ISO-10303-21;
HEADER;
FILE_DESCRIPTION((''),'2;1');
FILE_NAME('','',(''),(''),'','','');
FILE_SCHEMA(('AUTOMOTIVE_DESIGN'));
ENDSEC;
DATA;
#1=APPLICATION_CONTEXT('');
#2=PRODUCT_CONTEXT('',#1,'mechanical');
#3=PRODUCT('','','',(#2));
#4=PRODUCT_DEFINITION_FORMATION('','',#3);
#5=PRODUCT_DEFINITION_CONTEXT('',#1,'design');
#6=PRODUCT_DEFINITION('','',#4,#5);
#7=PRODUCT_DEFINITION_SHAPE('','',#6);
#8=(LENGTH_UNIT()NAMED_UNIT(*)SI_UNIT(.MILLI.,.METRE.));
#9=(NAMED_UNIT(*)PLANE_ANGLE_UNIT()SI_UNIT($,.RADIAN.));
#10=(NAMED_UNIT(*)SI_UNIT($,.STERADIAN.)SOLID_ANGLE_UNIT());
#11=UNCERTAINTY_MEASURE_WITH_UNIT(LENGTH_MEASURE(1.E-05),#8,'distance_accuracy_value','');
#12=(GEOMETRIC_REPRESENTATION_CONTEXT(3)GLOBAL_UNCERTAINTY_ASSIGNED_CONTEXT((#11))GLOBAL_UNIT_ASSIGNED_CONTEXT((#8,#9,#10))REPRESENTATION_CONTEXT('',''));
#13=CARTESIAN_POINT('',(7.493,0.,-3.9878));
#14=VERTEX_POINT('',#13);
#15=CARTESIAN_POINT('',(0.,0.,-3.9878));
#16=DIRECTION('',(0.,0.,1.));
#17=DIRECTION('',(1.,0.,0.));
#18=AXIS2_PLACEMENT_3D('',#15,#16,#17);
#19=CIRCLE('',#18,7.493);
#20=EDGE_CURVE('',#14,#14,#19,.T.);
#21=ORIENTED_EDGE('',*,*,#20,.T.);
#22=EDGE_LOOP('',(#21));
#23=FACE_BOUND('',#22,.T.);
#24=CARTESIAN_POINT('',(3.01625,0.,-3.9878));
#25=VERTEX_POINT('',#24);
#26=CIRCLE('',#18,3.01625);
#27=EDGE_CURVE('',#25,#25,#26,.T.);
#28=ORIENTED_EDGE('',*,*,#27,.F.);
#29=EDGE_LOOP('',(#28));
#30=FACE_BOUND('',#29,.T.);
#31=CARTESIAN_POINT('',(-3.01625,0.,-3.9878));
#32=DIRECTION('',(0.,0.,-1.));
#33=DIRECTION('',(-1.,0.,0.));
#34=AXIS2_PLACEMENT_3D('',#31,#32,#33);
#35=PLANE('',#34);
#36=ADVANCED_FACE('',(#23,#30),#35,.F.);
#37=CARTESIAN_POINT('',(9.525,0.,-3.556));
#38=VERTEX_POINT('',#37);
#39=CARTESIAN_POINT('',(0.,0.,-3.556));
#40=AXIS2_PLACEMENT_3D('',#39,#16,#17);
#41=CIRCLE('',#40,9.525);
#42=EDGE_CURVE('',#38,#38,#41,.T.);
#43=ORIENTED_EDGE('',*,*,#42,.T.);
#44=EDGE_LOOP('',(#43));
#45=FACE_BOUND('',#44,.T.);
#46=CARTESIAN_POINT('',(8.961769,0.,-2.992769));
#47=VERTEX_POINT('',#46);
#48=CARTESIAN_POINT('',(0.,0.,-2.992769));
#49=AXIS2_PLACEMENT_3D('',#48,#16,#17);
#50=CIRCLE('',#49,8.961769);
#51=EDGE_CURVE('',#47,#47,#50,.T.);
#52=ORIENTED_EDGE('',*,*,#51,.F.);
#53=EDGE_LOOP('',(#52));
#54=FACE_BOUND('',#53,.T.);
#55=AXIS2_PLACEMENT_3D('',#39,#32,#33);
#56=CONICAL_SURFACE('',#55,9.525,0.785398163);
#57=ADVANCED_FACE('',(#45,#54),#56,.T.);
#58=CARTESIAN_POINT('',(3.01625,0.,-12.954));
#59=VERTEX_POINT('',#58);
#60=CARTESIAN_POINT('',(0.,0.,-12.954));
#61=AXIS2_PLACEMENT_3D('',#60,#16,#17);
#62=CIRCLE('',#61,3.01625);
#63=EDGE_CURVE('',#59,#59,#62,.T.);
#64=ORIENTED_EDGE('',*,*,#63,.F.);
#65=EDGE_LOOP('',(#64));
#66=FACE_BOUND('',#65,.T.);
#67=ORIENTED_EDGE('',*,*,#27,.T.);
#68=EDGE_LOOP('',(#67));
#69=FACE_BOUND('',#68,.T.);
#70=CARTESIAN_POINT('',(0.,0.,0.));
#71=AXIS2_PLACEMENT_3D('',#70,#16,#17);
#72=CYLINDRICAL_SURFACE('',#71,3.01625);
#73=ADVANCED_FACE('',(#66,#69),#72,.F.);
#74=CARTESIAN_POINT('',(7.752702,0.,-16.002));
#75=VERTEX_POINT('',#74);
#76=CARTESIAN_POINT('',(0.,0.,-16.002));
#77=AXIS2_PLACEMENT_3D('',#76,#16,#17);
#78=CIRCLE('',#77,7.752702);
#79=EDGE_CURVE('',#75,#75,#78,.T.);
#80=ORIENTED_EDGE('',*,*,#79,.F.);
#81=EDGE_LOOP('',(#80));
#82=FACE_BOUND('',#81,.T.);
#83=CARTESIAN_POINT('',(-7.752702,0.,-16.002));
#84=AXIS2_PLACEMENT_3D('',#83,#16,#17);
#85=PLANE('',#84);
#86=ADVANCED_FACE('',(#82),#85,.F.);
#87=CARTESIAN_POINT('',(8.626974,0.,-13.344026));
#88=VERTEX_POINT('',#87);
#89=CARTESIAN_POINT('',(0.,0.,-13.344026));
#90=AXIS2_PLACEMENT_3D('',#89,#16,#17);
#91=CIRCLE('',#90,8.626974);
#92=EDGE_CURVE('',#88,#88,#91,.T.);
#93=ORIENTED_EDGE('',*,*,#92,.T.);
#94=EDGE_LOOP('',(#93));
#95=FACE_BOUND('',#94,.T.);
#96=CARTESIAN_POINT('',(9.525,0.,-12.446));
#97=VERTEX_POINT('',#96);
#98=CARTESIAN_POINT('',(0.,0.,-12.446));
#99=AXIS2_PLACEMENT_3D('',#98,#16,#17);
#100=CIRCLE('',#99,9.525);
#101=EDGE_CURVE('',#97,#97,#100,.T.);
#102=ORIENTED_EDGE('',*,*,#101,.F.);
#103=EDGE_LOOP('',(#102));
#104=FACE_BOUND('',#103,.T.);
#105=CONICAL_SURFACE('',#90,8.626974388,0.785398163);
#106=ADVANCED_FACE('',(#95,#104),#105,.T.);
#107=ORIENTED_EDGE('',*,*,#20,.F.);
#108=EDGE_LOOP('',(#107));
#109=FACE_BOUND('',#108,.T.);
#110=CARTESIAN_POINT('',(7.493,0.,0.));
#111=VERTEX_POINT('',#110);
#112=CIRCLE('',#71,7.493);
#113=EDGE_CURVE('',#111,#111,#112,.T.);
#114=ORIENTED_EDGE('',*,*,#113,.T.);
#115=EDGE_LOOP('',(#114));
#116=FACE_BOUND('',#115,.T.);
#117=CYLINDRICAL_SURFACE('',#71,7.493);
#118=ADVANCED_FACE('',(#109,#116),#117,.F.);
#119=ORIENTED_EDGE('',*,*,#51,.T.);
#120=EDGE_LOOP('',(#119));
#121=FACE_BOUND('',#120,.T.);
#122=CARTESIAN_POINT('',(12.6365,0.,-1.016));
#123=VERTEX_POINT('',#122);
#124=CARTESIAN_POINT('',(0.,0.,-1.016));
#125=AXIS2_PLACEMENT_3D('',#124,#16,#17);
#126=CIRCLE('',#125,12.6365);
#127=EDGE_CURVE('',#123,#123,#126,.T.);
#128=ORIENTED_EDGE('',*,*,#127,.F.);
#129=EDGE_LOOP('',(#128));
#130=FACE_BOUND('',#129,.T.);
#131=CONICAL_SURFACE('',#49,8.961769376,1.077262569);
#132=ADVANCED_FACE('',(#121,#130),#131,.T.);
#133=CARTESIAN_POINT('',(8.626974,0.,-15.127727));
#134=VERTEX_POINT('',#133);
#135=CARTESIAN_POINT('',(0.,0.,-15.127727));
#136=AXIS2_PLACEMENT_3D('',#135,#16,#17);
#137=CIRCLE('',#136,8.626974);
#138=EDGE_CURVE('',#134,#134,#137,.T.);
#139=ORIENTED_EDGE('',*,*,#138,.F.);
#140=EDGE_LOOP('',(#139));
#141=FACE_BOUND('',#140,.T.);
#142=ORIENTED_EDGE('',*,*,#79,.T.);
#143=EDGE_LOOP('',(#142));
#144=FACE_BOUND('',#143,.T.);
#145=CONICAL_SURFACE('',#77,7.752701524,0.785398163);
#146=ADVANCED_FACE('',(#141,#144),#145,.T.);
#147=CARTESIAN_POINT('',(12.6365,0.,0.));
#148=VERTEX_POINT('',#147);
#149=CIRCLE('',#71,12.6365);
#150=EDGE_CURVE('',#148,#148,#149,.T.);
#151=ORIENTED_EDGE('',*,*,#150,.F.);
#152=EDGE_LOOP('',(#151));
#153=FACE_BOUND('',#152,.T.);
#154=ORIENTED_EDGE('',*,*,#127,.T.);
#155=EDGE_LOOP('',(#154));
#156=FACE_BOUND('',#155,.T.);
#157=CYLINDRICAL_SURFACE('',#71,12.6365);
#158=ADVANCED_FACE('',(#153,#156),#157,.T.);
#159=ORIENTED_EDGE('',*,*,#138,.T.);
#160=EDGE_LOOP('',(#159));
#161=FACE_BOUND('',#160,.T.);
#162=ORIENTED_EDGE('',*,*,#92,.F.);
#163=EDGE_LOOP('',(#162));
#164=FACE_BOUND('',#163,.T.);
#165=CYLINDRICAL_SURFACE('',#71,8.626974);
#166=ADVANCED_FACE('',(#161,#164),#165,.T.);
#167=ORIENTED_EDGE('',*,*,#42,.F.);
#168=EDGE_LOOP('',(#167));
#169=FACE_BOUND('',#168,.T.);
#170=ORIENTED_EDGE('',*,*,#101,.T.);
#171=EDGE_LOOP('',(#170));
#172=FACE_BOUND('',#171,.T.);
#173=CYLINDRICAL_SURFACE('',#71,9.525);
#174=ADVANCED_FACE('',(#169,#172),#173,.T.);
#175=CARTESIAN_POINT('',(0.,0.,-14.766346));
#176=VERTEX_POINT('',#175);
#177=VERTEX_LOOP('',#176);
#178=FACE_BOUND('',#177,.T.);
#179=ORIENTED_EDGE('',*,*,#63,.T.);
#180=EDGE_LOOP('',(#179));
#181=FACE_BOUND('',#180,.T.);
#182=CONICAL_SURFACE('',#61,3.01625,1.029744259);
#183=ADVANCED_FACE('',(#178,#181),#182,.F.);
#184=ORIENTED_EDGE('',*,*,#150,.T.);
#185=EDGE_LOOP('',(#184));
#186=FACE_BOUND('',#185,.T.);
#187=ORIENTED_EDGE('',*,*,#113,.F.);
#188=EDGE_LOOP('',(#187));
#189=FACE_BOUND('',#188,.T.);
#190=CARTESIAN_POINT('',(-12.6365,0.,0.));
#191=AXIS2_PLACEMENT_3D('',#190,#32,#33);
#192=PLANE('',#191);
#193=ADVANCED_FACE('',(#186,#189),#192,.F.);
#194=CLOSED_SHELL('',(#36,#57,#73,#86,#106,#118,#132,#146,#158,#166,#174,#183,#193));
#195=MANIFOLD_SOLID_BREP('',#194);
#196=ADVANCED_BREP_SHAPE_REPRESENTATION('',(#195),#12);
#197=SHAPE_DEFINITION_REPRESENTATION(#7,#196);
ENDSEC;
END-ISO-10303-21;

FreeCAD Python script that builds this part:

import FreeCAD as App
import Part
import Sketcher

V = App.Vector
Q = App.Units.Quantity


def add_polygon(sketch, points):
    """Adds a closed chain of lines whose ends are joined by coincident constraints."""
    first, n = sketch.GeometryCount, len(points)
    for a, b in zip(points, points[1:] + points[:1]):
        sketch.addGeometry(Part.LineSegment(App.Vector(*a, 0), App.Vector(*b, 0)), False)
    for i in range(n):
        sketch.addConstraint(Sketcher.Constraint("Coincident", first + i, 2, first + (i + 1) % n, 1))

doc = App.newDocument("Part")
params = doc.addObject("Spreadsheet::Sheet", "Params")
for row, (alias, value) in enumerate([
    ("sketch1_height", "0.04 in"),
    ("sketch1_height2", "0.35 in"),
    ("sketch1_length", "0.05 in"),
    ("sketch1_height3", "0.157 in"),
    ("sketch1_height4", "0.353 in"),
    ("revolution_angle", "360 deg"),
], start=1):
    params.set(f"A{row}", alias)
    params.set(f"B{row}", "=" + value)
    params.setAlias(f"B{row}", alias)

body = doc.addObject("PartDesign::Body", "Body")

# Sketch on XZ plane
sketch1 = doc.addObject("Sketcher::SketchObject", "Sketch")
body.addObject(sketch1)
sketch1.AttachmentSupport = (doc.XZ_Plane, [""])
sketch1.MapMode = "FlatFace"
add_polygon(sketch1, [(-12.6, -1), (-12.6, 0), (-7.5, 0), (-7.5, -4), (-3, -4), (-3, -13), (0, -14.8), (0, -16), (-7.8, -16), (-8.6, -15.1), (-8.6, -13.3), (-9.5, -12.4), (-9.5, -3.6), (-9, -3)])  # lines 0-13
sketch1.addConstraint([
    Sketcher.Constraint("Vertical", 0),
    Sketcher.Constraint("Horizontal", 1),
    Sketcher.Constraint("Vertical", 2),
    Sketcher.Constraint("Horizontal", 3),
    Sketcher.Constraint("Vertical", 4),
    Sketcher.Constraint("Vertical", 6),
    Sketcher.Constraint("Horizontal", 7),
    Sketcher.Constraint("Vertical", 9),
    Sketcher.Constraint("Vertical", 11),
    Sketcher.Constraint("PointOnObject", 0, 2, -1),
    Sketcher.Constraint("PointOnObject", 5, 2, -2),
    Sketcher.Constraint("Parallel", 8, 10),
    Sketcher.Constraint("Perpendicular", 10, 12),
    Sketcher.Constraint("Angle", 5, Q("-31 deg")),
    Sketcher.Constraint("Angle", 8, Q("135 deg")),
    Sketcher.Constraint("DistanceY", 0, 1, 0, 2, Q("0.04 in")),
    Sketcher.Constraint("DistanceY", 11, 1, 11, 2, Q("0.35 in")),
    Sketcher.Constraint("DistanceY", 11, 2, 13, 2, Q("0.1 in")),
    Sketcher.Constraint("Distance", 10, Q("0.05 in")),
    Sketcher.Constraint("DistanceY", 2, 2, 2, 1, Q("0.157 in")),
    Sketcher.Constraint("DistanceY", 4, 2, 4, 1, Q("0.353 in")),
    Sketcher.Constraint("DistanceY", 6, 2, -1, 1, Q("0.63 in")),
    Sketcher.Constraint("DistanceX", 10, 2, 2, 2, Q("0.08 in")),
    Sketcher.Constraint("DistanceX", 1, 1, 1, 2, Q("0.2025 in")),
    Sketcher.Constraint("DistanceX", 1, 2, -1, 1, Q("0.295 in")),
    Sketcher.Constraint("DistanceX", 7, 2, 7, 1, 7.752702),
    Sketcher.Constraint("DistanceX", 3, 1, 3, 2, 4.47675),
    Sketcher.Constraint("Distance", 12, 0.796528),
])
sketch1.setExpression("Constraints[29]", "Params.sketch1_height")
sketch1.setExpression("Constraints[30]", "Params.sketch1_height2")
sketch1.setExpression("Constraints[32]", "Params.sketch1_length")
sketch1.setExpression("Constraints[33]", "Params.sketch1_height3")
sketch1.setExpression("Constraints[34]", "Params.sketch1_height4")
revolution = doc.addObject("PartDesign::Revolution", "Revolution")
body.addObject(revolution)
revolution.Profile = sketch1
revolution.ReferenceAxis = (sketch1, ["V_Axis"])
revolution.setExpression("Angle", "Params.revolution_angle")

doc.recompute()
